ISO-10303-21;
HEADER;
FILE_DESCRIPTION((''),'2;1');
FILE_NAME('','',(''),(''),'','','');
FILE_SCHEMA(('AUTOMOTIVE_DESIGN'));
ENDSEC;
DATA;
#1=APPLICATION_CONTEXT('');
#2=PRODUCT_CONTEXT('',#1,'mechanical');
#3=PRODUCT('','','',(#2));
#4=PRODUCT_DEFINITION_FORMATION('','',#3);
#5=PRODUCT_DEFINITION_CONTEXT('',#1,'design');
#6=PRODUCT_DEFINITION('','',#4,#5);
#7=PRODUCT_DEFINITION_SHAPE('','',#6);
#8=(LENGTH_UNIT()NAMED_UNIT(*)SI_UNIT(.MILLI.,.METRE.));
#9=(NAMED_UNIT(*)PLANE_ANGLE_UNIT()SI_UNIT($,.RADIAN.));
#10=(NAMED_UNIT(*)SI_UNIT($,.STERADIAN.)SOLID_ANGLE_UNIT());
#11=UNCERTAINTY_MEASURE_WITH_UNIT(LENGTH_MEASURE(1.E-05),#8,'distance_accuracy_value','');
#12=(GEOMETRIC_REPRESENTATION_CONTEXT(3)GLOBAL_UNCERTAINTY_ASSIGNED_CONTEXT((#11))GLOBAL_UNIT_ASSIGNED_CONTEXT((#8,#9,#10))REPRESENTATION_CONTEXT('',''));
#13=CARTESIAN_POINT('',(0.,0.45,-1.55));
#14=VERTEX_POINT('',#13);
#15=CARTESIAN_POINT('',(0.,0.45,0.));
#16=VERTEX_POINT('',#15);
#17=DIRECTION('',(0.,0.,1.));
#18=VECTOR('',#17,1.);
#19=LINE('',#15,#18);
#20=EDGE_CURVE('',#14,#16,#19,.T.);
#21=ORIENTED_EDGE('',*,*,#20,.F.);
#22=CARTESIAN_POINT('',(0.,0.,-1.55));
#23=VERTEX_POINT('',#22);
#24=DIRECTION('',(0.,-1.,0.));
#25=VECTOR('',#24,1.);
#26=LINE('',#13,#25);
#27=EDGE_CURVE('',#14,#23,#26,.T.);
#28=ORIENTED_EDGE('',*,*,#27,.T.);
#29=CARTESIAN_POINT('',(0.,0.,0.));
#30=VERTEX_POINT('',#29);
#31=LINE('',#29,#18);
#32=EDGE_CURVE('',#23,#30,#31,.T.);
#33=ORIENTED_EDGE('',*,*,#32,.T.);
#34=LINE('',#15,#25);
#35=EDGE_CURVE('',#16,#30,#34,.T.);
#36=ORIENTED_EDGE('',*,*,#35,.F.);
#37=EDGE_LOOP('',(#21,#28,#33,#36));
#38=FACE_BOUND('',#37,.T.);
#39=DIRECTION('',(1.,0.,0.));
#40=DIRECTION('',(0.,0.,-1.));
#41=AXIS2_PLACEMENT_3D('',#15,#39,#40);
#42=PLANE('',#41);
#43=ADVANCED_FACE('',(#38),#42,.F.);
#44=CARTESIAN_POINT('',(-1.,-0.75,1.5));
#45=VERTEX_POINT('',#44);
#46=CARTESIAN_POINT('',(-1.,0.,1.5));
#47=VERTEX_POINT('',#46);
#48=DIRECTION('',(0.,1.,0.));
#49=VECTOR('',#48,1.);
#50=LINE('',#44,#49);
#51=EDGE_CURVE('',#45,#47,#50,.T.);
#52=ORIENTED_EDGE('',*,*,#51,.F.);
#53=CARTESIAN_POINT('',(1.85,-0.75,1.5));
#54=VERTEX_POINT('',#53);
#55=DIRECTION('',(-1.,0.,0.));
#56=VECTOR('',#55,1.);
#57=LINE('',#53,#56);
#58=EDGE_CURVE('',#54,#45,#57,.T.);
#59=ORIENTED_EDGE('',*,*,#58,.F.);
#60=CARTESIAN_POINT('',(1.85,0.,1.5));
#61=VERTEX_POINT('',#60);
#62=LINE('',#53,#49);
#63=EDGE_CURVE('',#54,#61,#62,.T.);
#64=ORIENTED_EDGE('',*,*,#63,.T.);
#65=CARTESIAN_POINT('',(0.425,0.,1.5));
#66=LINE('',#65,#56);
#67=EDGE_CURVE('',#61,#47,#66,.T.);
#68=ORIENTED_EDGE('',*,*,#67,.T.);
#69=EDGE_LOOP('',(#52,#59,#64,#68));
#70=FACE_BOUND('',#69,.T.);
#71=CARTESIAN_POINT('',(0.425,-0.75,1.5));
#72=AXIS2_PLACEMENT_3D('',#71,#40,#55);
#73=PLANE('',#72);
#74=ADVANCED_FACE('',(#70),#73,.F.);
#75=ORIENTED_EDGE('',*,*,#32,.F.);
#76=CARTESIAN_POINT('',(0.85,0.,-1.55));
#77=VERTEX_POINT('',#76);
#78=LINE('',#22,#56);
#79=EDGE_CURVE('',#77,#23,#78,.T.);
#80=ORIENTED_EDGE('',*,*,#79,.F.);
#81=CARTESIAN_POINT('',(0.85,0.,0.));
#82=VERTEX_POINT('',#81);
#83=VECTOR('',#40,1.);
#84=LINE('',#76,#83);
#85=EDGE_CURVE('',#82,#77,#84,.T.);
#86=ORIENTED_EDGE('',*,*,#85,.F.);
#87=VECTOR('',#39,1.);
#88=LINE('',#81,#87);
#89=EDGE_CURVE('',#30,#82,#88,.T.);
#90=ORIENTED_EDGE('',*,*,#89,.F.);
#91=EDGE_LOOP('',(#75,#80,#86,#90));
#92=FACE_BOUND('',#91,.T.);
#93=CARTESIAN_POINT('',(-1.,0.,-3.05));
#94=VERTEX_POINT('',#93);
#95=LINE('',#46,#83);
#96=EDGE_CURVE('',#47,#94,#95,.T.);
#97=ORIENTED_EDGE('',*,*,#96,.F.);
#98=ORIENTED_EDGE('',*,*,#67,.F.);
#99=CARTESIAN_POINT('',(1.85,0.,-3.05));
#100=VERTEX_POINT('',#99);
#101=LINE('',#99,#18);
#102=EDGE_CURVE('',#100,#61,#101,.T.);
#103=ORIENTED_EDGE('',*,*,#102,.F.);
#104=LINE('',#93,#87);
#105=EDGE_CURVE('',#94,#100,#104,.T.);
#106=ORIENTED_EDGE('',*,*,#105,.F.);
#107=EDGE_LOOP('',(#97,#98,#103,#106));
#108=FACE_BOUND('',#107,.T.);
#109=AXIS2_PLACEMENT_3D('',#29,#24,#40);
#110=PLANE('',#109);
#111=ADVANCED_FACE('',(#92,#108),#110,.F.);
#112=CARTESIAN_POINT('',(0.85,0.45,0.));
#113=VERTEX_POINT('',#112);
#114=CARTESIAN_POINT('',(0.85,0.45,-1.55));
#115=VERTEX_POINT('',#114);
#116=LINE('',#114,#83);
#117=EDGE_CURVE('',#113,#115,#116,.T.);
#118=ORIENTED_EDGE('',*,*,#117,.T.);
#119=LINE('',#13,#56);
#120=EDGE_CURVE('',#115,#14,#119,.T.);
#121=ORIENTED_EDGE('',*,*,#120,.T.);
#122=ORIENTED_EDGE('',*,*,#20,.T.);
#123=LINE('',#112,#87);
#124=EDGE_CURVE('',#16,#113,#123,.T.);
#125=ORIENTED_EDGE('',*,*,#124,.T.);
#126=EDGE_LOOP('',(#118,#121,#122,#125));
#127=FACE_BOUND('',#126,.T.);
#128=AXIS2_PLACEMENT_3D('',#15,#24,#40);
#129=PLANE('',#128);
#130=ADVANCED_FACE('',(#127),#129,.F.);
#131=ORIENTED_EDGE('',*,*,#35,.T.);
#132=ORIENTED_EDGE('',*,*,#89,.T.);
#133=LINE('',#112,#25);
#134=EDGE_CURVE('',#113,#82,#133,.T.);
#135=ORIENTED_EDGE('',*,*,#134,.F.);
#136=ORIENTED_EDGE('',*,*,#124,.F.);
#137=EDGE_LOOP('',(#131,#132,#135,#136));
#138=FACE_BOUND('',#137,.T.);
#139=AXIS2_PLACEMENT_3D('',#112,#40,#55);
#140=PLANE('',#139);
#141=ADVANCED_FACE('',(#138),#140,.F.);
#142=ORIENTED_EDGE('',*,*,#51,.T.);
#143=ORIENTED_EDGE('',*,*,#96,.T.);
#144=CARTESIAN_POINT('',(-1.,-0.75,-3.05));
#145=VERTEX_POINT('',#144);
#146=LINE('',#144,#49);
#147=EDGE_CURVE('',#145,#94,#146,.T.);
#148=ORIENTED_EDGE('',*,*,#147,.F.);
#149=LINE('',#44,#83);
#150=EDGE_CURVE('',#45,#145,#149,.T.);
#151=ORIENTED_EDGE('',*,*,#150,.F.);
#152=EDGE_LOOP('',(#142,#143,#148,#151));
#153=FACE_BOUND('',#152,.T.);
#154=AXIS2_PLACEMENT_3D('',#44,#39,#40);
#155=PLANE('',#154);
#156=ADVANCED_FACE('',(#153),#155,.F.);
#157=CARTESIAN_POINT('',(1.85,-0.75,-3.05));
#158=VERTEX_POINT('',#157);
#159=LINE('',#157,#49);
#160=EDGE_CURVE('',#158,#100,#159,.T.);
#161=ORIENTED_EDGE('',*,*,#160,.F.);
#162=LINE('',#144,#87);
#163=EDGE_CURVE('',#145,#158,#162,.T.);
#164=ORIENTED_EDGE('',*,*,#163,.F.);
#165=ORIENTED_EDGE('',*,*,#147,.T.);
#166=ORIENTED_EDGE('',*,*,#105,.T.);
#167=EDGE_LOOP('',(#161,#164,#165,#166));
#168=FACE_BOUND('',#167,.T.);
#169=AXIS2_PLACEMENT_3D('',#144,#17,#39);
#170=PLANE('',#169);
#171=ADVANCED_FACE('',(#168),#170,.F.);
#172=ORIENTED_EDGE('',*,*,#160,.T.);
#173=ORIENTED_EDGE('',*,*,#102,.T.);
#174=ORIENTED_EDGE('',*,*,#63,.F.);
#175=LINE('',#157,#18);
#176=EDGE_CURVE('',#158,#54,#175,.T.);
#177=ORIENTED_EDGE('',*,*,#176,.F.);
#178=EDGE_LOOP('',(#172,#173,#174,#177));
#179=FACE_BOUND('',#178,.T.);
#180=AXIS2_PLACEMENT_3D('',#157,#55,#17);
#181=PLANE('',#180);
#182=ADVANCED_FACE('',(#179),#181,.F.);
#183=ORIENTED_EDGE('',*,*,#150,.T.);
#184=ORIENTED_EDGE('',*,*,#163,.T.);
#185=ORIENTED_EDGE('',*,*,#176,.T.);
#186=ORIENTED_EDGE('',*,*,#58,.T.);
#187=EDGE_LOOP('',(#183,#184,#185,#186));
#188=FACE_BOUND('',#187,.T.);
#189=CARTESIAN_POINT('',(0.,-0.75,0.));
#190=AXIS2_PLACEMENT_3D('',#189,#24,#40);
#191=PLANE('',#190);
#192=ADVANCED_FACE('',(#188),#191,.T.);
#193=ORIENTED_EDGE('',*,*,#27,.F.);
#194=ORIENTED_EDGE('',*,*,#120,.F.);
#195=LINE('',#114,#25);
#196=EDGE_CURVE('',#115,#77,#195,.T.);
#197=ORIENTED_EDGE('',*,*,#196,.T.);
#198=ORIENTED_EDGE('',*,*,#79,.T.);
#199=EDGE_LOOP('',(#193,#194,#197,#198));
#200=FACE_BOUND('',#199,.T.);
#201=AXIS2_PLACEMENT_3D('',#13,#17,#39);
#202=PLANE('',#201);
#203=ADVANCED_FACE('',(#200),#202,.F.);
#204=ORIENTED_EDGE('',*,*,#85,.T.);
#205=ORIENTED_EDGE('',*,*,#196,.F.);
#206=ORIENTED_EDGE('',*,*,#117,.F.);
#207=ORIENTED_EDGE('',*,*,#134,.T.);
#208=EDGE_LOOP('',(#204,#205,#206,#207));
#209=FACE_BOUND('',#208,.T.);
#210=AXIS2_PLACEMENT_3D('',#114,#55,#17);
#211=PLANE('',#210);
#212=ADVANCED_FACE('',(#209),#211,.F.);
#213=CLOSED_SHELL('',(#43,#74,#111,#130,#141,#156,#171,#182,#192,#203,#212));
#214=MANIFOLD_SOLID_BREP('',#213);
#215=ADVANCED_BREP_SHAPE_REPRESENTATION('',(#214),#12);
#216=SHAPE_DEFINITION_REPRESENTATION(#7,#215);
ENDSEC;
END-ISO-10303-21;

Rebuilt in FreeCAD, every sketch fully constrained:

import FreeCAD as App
import Part
import Sketcher

doc = App.newDocument("Part")
body = doc.addObject("PartDesign::Body", "Body")

# Sketch on XZ plane
sketch1 = body.newObject("Sketcher::SketchObject", "Sketch")
sketch1.AttachmentSupport = (doc.getObject("XZ_Plane"), [""])
sketch1.MapMode = "FlatFace"
sketch1.addGeometry([
    Part.LineSegment(App.Vector(0, -1.55, 0), App.Vector(0, 0, 0)),
    Part.LineSegment(App.Vector(0, 0, 0), App.Vector(0.85, 0, 0)),
    Part.LineSegment(App.Vector(0.85, 0, 0), App.Vector(0.85, -1.55, 0)),
    Part.LineSegment(App.Vector(0.85, -1.55, 0), App.Vector(0, -1.55, 0)),
], False)
sketch1.addConstraint([
    Sketcher.Constraint("Coincident", 0, 2, 1, 1),
    Sketcher.Constraint("Coincident", 1, 2, 2, 1),
    Sketcher.Constraint("Coincident", 2, 2, 3, 1),
    Sketcher.Constraint("Coincident", 3, 2, 0, 1),
    Sketcher.Constraint("Vertical", 0),
    Sketcher.Constraint("Horizontal", 1),
    Sketcher.Constraint("Vertical", 2),
    Sketcher.Constraint("Horizontal", 3),
    Sketcher.Constraint("Coincident", 0, 2, -1, 1),
    Sketcher.Constraint("DistanceX", 1, 1, 1, 2, 0.85),
    Sketcher.Constraint("DistanceY", 0, 1, 0, 2, 1.55),
])
pad1 = body.newObject("PartDesign::Pad", "Pad")
pad1.Profile = sketch1
pad1.Length = 0.45
pad1.Reversed = True

# Sketch on XZ plane
sketch2 = body.newObject("Sketcher::SketchObject", "Sketch001")
sketch2.AttachmentSupport = (doc.getObject("XZ_Plane"), [""])
sketch2.MapMode = "FlatFace"
sketch2.addGeometry([
    Part.LineSegment(App.Vector(-1, 1.5, 0), App.Vector(-1, -3.05, 0)),
    Part.LineSegment(App.Vector(-1, -3.05, 0), App.Vector(1.85, -3.05, 0)),
    Part.LineSegment(App.Vector(1.85, -3.05, 0), App.Vector(1.85, 1.5, 0)),
    Part.LineSegment(App.Vector(1.85, 1.5, 0), App.Vector(-1, 1.5, 0)),
], False)
sketch2.addConstraint([
    Sketcher.Constraint("Coincident", 0, 2, 1, 1),
    Sketcher.Constraint("Coincident", 1, 2, 2, 1),
    Sketcher.Constraint("Coincident", 2, 2, 3, 1),
    Sketcher.Constraint("Coincident", 3, 2, 0, 1),
    Sketcher.Constraint("Vertical", 0),
    Sketcher.Constraint("Horizontal", 1),
    Sketcher.Constraint("Vertical", 2),
    Sketcher.Constraint("Horizontal", 3),
    Sketcher.Constraint("DistanceX", 0, 2, -1, 1, 1.0),
    Sketcher.Constraint("DistanceX", 1, 1, 1, 2, 2.85),
    Sketcher.Constraint("DistanceY", 0, 2, 0, 1, 4.55),
    Sketcher.Constraint("DistanceY", -1, 1, 2, 2, 1.5),
])
pad2 = body.newObject("PartDesign::Pad", "Pad001")
pad2.Profile = sketch2
pad2.Length = 0.75

doc.recompute()
